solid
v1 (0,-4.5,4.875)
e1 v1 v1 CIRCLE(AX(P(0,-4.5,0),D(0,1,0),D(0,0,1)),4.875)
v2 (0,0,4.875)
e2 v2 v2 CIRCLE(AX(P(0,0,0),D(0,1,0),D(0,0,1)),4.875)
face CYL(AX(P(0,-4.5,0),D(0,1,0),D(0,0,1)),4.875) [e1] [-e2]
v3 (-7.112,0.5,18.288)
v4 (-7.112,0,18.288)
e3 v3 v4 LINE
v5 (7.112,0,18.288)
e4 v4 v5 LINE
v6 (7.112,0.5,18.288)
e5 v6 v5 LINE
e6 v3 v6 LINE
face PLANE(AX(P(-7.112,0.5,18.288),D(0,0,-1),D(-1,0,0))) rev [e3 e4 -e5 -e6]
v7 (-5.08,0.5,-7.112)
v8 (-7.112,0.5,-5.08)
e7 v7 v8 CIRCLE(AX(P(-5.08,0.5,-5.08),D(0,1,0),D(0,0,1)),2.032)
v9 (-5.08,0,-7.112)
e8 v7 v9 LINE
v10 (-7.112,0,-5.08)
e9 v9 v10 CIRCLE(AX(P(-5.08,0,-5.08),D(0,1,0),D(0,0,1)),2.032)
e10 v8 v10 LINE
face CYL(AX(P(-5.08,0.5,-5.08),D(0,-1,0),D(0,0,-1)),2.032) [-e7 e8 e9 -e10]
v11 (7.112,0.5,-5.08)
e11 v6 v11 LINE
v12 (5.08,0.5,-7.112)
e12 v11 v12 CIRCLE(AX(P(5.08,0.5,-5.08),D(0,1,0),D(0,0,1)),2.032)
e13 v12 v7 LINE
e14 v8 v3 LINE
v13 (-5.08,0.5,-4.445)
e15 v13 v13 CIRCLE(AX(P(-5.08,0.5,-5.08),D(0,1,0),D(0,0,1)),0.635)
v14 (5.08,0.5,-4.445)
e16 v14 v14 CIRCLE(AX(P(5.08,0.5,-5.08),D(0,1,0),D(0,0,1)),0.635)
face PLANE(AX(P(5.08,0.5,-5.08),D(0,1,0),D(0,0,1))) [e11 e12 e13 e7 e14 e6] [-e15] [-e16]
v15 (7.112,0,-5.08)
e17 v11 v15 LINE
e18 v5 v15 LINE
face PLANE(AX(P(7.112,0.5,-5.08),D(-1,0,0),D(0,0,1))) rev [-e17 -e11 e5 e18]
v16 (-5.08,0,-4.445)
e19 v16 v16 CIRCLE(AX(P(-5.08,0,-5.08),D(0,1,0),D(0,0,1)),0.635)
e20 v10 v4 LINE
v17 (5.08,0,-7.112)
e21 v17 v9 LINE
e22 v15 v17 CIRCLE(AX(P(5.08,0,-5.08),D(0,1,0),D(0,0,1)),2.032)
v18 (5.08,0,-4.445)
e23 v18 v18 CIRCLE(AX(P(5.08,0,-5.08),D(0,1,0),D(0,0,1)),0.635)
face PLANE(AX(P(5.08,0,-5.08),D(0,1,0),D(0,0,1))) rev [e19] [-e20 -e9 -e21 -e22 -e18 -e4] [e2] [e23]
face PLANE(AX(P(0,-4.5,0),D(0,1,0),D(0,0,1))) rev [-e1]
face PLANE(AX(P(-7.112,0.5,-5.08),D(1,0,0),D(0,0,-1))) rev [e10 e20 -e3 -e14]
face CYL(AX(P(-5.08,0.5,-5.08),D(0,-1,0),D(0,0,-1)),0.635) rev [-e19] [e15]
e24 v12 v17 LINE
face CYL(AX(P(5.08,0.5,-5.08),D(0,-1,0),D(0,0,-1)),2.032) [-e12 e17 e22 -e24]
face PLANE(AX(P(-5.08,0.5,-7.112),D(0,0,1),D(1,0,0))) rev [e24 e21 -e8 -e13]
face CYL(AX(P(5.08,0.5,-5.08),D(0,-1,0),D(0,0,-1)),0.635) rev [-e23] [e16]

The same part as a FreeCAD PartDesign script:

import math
import FreeCAD as App
import Part
import Sketcher
Q = App.Units.Quantity

doc = App.newDocument("Part")
body = doc.addObject("PartDesign::Body", "Body")

sketch1 = body.newObject("Sketcher::SketchObject", "Sketch")
sketch1.AttachmentSupport = (doc.getObject("XZ_Plane"), [""])
sketch1.MapMode = "FlatFace"
sketch1.addGeometry([
    Part.LineSegment(App.Vector(5.1, -7.1, 0), App.Vector(-5.1, -7.1, 0)),
    Part.ArcOfCircle(Part.Circle(App.Vector(-5.1, -5.1, 0), App.Vector(0, 0, 1), 2), math.radians(-180), math.radians(-90)),
    Part.LineSegment(App.Vector(-7.1, -5.1, 0), App.Vector(-7.1, 18.3, 0)),
    Part.LineSegment(App.Vector(-7.1, 18.3, 0), App.Vector(7.1, 18.3, 0)),
    Part.LineSegment(App.Vector(7.1, 18.3, 0), App.Vector(7.1, -5.1, 0)),
    Part.ArcOfCircle(Part.Circle(App.Vector(5.1, -5.1, 0), App.Vector(0, 0, 1), 2), math.radians(-90), math.radians(0)),
    Part.Circle(App.Vector(5.1, -5.1, 0), App.Vector(0, 0, 1), 0.6),
    Part.Circle(App.Vector(-5.1, -5.1, 0), App.Vector(0, 0, 1), 0.6),
], False)
sketch1.addConstraint([
    Sketcher.Constraint("Tangent", 0, 2, 1, 2),
    Sketcher.Constraint("Tangent", 1, 1, 2, 1),
    Sketcher.Constraint("Coincident", 2, 2, 3, 1),
    Sketcher.Constraint("Coincident", 3, 2, 4, 1),
    Sketcher.Constraint("Tangent", 4, 2, 5, 2),
    Sketcher.Constraint("Tangent", 5, 1, 0, 1),
    Sketcher.Constraint("Horizontal", 0),
    Sketcher.Constraint("Vertical", 2),
    Sketcher.Constraint("Horizontal", 3),
    Sketcher.Constraint("Vertical", 4),
    Sketcher.Constraint("Coincident", 6, 3, 5, 3),
    Sketcher.Constraint("Coincident", 7, 3, 1, 3),
    Sketcher.Constraint("Equal", 1, 5),
    Sketcher.Constraint("Equal", 6, 7),
    Sketcher.Constraint("Diameter", 6, Q("0.05 in")),
    Sketcher.Constraint("Radius", 1, Q("0.08 in")),
    Sketcher.Constraint("DistanceX", 0, 2, 0, 1, Q("0.4 in")),
    Sketcher.Constraint("DistanceY", 0, 2, 2, 2, Q("1 in")),
    Sketcher.Constraint("DistanceX", 1, 3, -1, 1, Q("0.2 in")),
    Sketcher.Constraint("DistanceY", 1, 3, -1, 1, Q("0.2 in")),
])
pad1 = body.newObject("PartDesign::Pad", "Pad")
pad1.Profile = sketch1
pad1.Length = 0.5
pad1.Reversed = True

sketch2 = body.newObject("Sketcher::SketchObject", "Sketch001")
sketch2.AttachmentSupport = (doc.getObject("XZ_Plane"), [""])
sketch2.MapMode = "FlatFace"
sketch2.addGeometry(Part.Circle(App.Vector(0, 0, 0), App.Vector(0, 0, 1), 4.9), False)
sketch2.addConstraint([
    Sketcher.Constraint("Coincident", 0, 3, -1, 1),
    Sketcher.Constraint("Diameter", 0, 9.75),
])
pad2 = body.newObject("PartDesign::Pad", "Pad001")
pad2.Profile = sketch2
pad2.Length = 4.5

doc.recompute()
